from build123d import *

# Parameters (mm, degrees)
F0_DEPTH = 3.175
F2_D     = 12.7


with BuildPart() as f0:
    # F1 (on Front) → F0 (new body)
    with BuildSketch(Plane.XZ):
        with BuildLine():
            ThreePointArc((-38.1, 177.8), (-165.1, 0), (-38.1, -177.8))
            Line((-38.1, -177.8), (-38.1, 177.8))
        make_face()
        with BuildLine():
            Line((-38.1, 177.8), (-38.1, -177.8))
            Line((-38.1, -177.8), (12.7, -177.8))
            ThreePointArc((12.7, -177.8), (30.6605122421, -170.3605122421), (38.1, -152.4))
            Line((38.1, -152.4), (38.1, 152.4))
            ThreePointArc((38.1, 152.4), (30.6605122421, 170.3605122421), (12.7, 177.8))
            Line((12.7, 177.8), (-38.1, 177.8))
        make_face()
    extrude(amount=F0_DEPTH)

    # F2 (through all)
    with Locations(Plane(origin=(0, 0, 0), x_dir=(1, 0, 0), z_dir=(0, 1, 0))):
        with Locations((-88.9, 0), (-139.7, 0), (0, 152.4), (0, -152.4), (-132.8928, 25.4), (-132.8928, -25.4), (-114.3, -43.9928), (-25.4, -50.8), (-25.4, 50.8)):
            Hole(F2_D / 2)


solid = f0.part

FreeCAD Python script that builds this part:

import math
import FreeCAD as App
import Part
import Sketcher

V = App.Vector
Q = App.Units.Quantity

doc = App.newDocument("Part")
body = doc.addObject("PartDesign::Body", "Body")

# Sketch on XZ plane
sketch1 = body.newObject("Sketcher::SketchObject", "Sketch")
sketch1.AttachmentSupport = (doc.getObject("XZ_Plane"), [""])
sketch1.MapMode = "FlatFace"
sketch1.addGeometry(Part.ArcOfCircle(Part.Circle(V(22.86, 0, 0), V(0, 0, 1), 187.96), math.radians(108.924644), math.radians(251.075356)), False)
sketch1.addGeometry(Part.LineSegment(V(-38.1, -177.8, 0), V(12.7, -177.8, 0)), False)
sketch1.addGeometry(Part.ArcOfCircle(Part.Circle(V(12.7, -152.4, 0), V(0, 0, 1), 25.4), math.radians(-90), math.radians(0)), False)
sketch1.addGeometry(Part.LineSegment(V(38.1, -152.4, 0), V(38.1, 152.4, 0)), False)
sketch1.addGeometry(Part.ArcOfCircle(Part.Circle(V(12.7, 152.4, 0), V(0, 0, 1), 25.4), math.radians(0), math.radians(90)), False)
sketch1.addGeometry(Part.LineSegment(V(12.7, 177.8, 0), V(-38.1, 177.8, 0)), False)
sketch1.addConstraint(Sketcher.Constraint("Coincident", 0, 2, 1, 1))
sketch1.addConstraint(Sketcher.Constraint("Tangent", 1, 2, 2, 1))
sketch1.addConstraint(Sketcher.Constraint("Tangent", 2, 2, 3, 1))
sketch1.addConstraint(Sketcher.Constraint("Tangent", 3, 2, 4, 1))
sketch1.addConstraint(Sketcher.Constraint("Tangent", 4, 2, 5, 1))
sketch1.addConstraint(Sketcher.Constraint("Coincident", 5, 2, 0, 1))
sketch1.addConstraint(Sketcher.Constraint("Horizontal", 1))
sketch1.addConstraint(Sketcher.Constraint("Vertical", 3))
sketch1.addConstraint(Sketcher.Constraint("Horizontal", 5))
sketch1.addConstraint(Sketcher.Constraint("Equal", 2, 4))
sketch1.addConstraint(Sketcher.Constraint("Symmetric", 0, 2, 5, 2, -1))
sketch1.addConstraint(Sketcher.Constraint("Radius", 2, Q("1 in")))
sketch1.addConstraint(Sketcher.Constraint("Radius", 0, Q("7.4 in")))
sketch1.addConstraint(Sketcher.Constraint("DistanceX", 1, 1, 1, 2, Q("2 in")))
sketch1.addConstraint(Sketcher.Constraint("DistanceY", 3, 1, 3, 2, Q("12 in")))
sketch1.addConstraint(Sketcher.Constraint("DistanceX", -1, 1, 0, 3, Q("0.9 in")))
pad1 = body.newObject("PartDesign::Pad", "Pad")
pad1.Profile = sketch1
pad1.Length = Q("0.125 in")

# Sketch on XZ plane
sketch2 = body.newObject("Sketcher::SketchObject", "Sketch001")
sketch2.AttachmentSupport = (doc.getObject("XZ_Plane"), [""])
sketch2.MapMode = "FlatFace"
sketch2.addGeometry(Part.Circle(V(-88.9, 0, 0), V(0, 0, 1), 6.35), False)
sketch2.addGeometry(Part.Circle(V(-139.7, 0, 0), V(0, 0, 1), 6.35), False)
sketch2.addGeometry(Part.Circle(V(0, -152.4, 0), V(0, 0, 1), 6.35), False)
sketch2.addGeometry(Part.Circle(V(0, 152.4, 0), V(0, 0, 1), 6.35), False)
sketch2.addGeometry(Part.Circle(V(-132.8928, -25.4, 0), V(0, 0, 1), 6.35), False)
sketch2.addGeometry(Part.Circle(V(-132.8928, 25.4, 0), V(0, 0, 1), 6.35), False)
sketch2.addGeometry(Part.Circle(V(-114.3, 43.9928, 0), V(0, 0, 1), 6.35), False)
sketch2.addGeometry(Part.Circle(V(-25.4, 50.8, 0), V(0, 0, 1), 6.35), False)
sketch2.addGeometry(Part.Circle(V(-25.4, -50.8, 0), V(0, 0, 1), 6.35), False)
sketch2.addConstraint(Sketcher.Constraint("Equal", 0, 1))
sketch2.addConstraint(Sketcher.Constraint("Equal", 1, 2))
sketch2.addConstraint(Sketcher.Constraint("Equal", 2, 3))
sketch2.addConstraint(Sketcher.Constraint("Equal", 3, 4))
sketch2.addConstraint(Sketcher.Constraint("Equal", 4, 5))
sketch2.addConstraint(Sketcher.Constraint("Equal", 5, 6))
sketch2.addConstraint(Sketcher.Constraint("Equal", 6, 7))
sketch2.addConstraint(Sketcher.Constraint("Equal", 7, 8))
sketch2.addConstraint(Sketcher.Constraint("Symmetric", 2, 3, 3, 3, -1, 1))
sketch2.addConstraint(Sketcher.Constraint("Symmetric", 4, 3, 5, 3, -1))
sketch2.addConstraint(Sketcher.Constraint("Symmetric", 7, 3, 8, 3, -1))
sketch2.addConstraint(Sketcher.Constraint("PointOnObject", 0, 3, -1))
sketch2.addConstraint(Sketcher.Constraint("PointOnObject", 1, 3, -1))
sketch2.addConstraint(Sketcher.Constraint("PointOnObject", 2, 3, -2))
sketch2.addConstraint(Sketcher.Constraint("Diameter", 0, Q("0.5 in")))
sketch2.addConstraint(Sketcher.Constraint("DistanceY", 2, 3, -1, 1, Q("6 in")))
sketch2.addConstraint(Sketcher.Constraint("DistanceY", 4, 3, -1, 1, Q("1 in")))
sketch2.addConstraint(Sketcher.Constraint("DistanceX", 7, 3, -1, 1, Q("1 in")))
sketch2.addConstraint(Sketcher.Constraint("DistanceY", -1, 1, 7, 3, Q("2 in")))
sketch2.addConstraint(Sketcher.Constraint("DistanceX", 1, 3, 0, 3, Q("2 in")))
sketch2.addConstraint(Sketcher.Constraint("DistanceX", 6, 3, 0, 3, Q("1 in")))
sketch2.addConstraint(Sketcher.Constraint("DistanceX", 0, 3, -1, 1, Q("3.5 in")))
sketch2.addConstraint(Sketcher.Constraint("DistanceX", 4, 3, -1, 1, Q("5.232 in")))
sketch2.addConstraint(Sketcher.Constraint("DistanceY", -1, 1, 6, 3, Q("1.732 in")))
doc.recompute()
hole = body.newObject("PartDesign::Hole", "Hole")
hole.Profile = sketch2
hole.ThreadType = "None"
hole.Diameter = Q("0.5 in")
hole.DepthType = "ThroughAll"
hole.Reversed = True

doc.recompute()
